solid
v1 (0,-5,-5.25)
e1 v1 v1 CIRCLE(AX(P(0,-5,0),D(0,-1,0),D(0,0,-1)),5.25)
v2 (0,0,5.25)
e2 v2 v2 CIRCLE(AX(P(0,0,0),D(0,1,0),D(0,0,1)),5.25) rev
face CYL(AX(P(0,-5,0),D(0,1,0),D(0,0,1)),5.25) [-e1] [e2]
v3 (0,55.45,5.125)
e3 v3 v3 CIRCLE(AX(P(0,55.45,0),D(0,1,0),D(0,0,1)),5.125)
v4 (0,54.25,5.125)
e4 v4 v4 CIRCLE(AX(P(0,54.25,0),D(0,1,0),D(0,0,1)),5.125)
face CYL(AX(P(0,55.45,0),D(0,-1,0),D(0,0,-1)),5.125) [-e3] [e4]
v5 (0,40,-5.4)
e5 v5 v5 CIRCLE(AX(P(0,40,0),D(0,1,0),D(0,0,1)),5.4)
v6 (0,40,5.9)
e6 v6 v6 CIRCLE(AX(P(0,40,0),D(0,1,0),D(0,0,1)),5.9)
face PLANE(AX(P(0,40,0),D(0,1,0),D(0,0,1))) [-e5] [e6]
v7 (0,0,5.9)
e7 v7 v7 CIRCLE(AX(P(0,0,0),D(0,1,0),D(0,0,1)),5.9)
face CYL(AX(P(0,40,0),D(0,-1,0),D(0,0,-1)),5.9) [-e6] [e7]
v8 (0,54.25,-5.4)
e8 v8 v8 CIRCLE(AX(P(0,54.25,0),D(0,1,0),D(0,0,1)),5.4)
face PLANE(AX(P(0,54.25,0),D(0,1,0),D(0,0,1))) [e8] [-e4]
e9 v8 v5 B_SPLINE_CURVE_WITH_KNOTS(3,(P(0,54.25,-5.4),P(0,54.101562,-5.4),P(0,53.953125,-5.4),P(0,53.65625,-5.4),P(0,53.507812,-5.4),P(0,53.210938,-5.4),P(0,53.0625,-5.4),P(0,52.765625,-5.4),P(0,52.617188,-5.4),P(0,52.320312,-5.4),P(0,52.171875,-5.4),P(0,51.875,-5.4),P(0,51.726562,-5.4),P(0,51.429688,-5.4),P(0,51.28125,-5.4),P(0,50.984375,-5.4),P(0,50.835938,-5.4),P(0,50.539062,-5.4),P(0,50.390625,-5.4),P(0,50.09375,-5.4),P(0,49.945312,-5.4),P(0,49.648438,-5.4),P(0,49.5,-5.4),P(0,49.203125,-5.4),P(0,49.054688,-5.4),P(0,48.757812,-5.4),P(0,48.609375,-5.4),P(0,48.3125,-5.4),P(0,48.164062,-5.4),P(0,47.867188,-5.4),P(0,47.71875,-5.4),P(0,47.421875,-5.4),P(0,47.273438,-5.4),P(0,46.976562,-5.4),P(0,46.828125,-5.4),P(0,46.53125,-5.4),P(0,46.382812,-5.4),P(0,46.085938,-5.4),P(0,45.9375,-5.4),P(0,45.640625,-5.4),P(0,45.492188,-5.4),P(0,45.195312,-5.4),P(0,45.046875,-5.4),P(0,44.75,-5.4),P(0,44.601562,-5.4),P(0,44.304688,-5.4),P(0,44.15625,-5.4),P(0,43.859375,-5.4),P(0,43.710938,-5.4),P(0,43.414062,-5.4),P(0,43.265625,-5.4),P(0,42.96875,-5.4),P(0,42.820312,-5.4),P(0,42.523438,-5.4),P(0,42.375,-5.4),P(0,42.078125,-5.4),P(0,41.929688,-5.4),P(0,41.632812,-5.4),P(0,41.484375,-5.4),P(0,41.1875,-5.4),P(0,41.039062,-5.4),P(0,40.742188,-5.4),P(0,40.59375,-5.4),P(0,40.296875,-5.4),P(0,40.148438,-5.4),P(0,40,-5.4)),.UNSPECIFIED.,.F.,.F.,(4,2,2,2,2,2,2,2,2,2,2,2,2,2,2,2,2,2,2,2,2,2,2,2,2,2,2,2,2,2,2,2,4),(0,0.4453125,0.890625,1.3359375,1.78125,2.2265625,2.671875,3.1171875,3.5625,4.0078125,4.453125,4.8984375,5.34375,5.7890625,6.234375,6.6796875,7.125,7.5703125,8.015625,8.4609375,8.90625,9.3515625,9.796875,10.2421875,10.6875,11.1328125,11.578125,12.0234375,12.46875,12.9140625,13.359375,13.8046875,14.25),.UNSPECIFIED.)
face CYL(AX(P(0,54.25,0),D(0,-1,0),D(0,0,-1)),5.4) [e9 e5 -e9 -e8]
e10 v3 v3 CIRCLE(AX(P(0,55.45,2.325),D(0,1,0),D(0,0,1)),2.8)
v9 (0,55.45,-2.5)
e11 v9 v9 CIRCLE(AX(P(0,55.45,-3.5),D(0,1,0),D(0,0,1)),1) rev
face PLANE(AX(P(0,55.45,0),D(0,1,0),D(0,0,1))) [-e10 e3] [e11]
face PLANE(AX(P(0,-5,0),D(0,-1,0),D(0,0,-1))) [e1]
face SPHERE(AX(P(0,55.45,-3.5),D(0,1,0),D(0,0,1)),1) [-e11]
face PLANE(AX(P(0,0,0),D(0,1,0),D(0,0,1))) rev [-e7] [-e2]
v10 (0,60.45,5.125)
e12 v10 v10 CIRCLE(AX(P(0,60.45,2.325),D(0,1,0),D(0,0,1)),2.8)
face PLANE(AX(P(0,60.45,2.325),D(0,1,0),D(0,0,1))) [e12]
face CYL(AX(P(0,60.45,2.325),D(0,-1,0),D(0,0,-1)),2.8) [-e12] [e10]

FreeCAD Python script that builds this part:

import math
import FreeCAD as App
import Part
import Sketcher

V = App.Vector
Q = App.Units.Quantity

doc = App.newDocument("Part")
body = doc.addObject("PartDesign::Body", "Body")

sketch1 = body.newObject("Sketcher::SketchObject", "Sketch")
sketch1.AttachmentSupport = (doc.getObject("XZ_Plane"), [""])
sketch1.MapMode = "FlatFace"
sketch1.addGeometry(Part.Circle(V(0, 0, 0), V(0, 0, 1), 5.9), False)
sketch1.addConstraint([
    Sketcher.Constraint("Coincident", 0, 3, -1, 1),
    Sketcher.Constraint("Diameter", 0, Q("11.8 mm")),
])
pad1 = body.newObject("PartDesign::Pad", "Pad")
pad1.Profile = sketch1
pad1.Length = 40
pad1.Reversed = True

sketch2 = body.newObject("Sketcher::SketchObject", "Sketch001")
sketch2.AttachmentSupport = (doc.getObject("XZ_Plane"), [""])
sketch2.MapMode = "FlatFace"
sketch2.AttachmentOffset = App.Placement(V(0, 0, -40), App.Rotation())
sketch2.addGeometry(Part.Circle(V(0, 0, 0), V(0, 0, 1), 5.4), False)
sketch2.addConstraint([
    Sketcher.Constraint("Coincident", 0, 3, -1, 1),
    Sketcher.Constraint("Diameter", 0, Q("10.8 mm")),
])
pad2 = body.newObject("PartDesign::Pad", "Pad001")
pad2.Profile = sketch2
pad2.Length = 14.25
pad2.Reversed = True

sketch3 = body.newObject("Sketcher::SketchObject", "Sketch002")
sketch3.AttachmentSupport = (doc.getObject("XZ_Plane"), [""])
sketch3.MapMode = "FlatFace"
sketch3.AttachmentOffset = App.Placement(V(0, 0, -54.25), App.Rotation())
sketch3.addGeometry(Part.Circle(V(0, 0, 0), V(0, 0, 1), 5.125), False)
sketch3.addConstraint([
    Sketcher.Constraint("Coincident", 0, 3, -1, 1),
    Sketcher.Constraint("Diameter", 0, Q("10.25 mm")),
])
pad3 = body.newObject("PartDesign::Pad", "Pad002")
pad3.Profile = sketch3
pad3.Length = 1.2
pad3.Reversed = True

sketch4 = body.newObject("Sketcher::SketchObject", "Sketch003")
sketch4.AttachmentSupport = (doc.getObject("XZ_Plane"), [""])
sketch4.MapMode = "FlatFace"
sketch4.AttachmentOffset = App.Placement(V(0, 0, -55.45), App.Rotation())
sketch4.addGeometry(Part.Circle(V(0, 2.325, 0), V(0, 0, 1), 2.8), False)
sketch4.addConstraint([
    Sketcher.Constraint("PointOnObject", 0, 3, -2),
    Sketcher.Constraint("Diameter", 0, Q("5.6 mm")),
    Sketcher.Constraint("DistanceY", -1, 1, 0, 3, Q("2.325 mm")),
])
pad4 = body.newObject("PartDesign::Pad", "Pad003")
pad4.Profile = sketch4
pad4.Length = 5
pad4.Reversed = True

sketch5 = body.newObject("Sketcher::SketchObject", "Sketch004")
sketch5.AttachmentSupport = (doc.getObject("XZ_Plane"), [""])
sketch5.MapMode = "FlatFace"
sketch5.addGeometry(Part.Circle(V(0, 0, 0), V(0, 0, 1), 5.25), False)
sketch5.addConstraint([
    Sketcher.Constraint("Coincident", 0, 3, -1, 1),
    Sketcher.Constraint("Diameter", 0, Q("10.5 mm")),
])
pad5 = body.newObject("PartDesign::Pad", "Pad004")
pad5.Profile = sketch5
pad5.Length = 5

sketch6 = body.newObject("Sketcher::SketchObject", "Sketch005")
sketch6.AttachmentSupport = (doc.getObject("XZ_Plane"), [""])
sketch6.MapMode = "FlatFace"
sketch6.AttachmentOffset = App.Placement(V(0, 0, -55.45), App.Rotation())
sketch6.addGeometry([
    Part.LineSegment(V(0, -2.5, 0), V(0, -4.5, 0)),
    Part.ArcOfCircle(Part.Circle(V(0, -3.5, 0), V(0, 0, 1), 1), math.radians(90), math.radians(270)),
], False)
sketch6.addConstraint([
    Sketcher.Constraint("Coincident", 0, 1, 1, 1),
    Sketcher.Constraint("Coincident", 1, 2, 0, 2),
    Sketcher.Constraint("Vertical", 0),
    Sketcher.Constraint("PointOnObject", 1, 3, -2),
    Sketcher.Constraint("PointOnObject", 0, 1, -2),
    Sketcher.Constraint("Radius", 1, Q("1 mm")),
    Sketcher.Constraint("DistanceY", 1, 3, -1, 1, Q("3.5 mm")),
])
revolution = body.newObject("PartDesign::Revolution", "Revolution")
revolution.Profile = sketch6
revolution.ReferenceAxis = (sketch6, ["V_Axis"])
revolution.Angle = 360

doc.recompute()
